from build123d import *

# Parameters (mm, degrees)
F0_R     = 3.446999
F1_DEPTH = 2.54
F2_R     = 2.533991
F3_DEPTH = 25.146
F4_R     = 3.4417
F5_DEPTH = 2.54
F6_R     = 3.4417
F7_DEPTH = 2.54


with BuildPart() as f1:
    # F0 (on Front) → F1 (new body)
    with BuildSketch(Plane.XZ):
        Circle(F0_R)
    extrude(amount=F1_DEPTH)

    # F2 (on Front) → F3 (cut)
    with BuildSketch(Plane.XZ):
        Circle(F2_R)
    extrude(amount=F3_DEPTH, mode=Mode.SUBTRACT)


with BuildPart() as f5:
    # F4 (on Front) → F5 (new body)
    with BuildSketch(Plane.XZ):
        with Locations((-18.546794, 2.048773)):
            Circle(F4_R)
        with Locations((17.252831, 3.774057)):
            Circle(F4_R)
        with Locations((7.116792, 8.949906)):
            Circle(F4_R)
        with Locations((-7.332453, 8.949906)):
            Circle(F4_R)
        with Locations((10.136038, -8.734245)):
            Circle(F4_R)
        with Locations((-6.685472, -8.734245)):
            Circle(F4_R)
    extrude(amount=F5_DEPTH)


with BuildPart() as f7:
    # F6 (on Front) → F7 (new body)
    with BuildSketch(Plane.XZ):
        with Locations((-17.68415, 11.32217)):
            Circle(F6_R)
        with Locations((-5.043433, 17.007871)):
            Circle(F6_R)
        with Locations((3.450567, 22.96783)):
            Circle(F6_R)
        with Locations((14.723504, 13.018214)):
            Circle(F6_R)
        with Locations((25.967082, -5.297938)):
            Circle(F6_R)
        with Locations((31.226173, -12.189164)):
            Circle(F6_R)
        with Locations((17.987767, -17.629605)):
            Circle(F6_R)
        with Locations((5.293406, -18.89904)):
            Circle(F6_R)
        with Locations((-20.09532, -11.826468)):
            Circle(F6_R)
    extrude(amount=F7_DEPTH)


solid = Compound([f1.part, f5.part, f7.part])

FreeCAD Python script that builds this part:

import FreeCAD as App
import Part
import Sketcher

V = App.Vector
Q = App.Units.Quantity

doc = App.newDocument("Part")
params = doc.addObject("Spreadsheet::Sheet", "Params")
for row, (alias, value) in enumerate([
    ("pad1_length", "0.1 in"),
    ("pocket1_length", "0.99 in"),
    ("sketch3_diameter", "0.271 in"),
    ("pad2_length", "0.1 in"),
    ("sketch4_diameter", "0.271 in"),
    ("pad3_length", "0.1 in"),
], start=1):
    params.set(f"A{row}", alias)
    params.set(f"B{row}", "=" + value)
    params.setAlias(f"B{row}", alias)

body = doc.addObject("PartDesign::Body", "Body")

# Sketch on XZ plane
sketch1 = body.newObject("Sketcher::SketchObject", "Sketch")
sketch1.AttachmentSupport = (doc.getObject("XZ_Plane"), [""])
sketch1.MapMode = "FlatFace"
sketch1.addGeometry(Part.Circle(V(0, 0, 0), V(0, 0, 1), 3.4), False)
sketch1.addConstraint(Sketcher.Constraint("Coincident", 0, 3, -1, 1))
sketch1.addConstraint(Sketcher.Constraint("Diameter", 0, 6.893998))
pad1 = body.newObject("PartDesign::Pad", "Pad")
pad1.Profile = sketch1
pad1.setExpression("Length", "Params.pad1_length")

# Sketch on XZ plane
sketch2 = body.newObject("Sketcher::SketchObject", "Sketch001")
sketch2.AttachmentSupport = (doc.getObject("XZ_Plane"), [""])
sketch2.MapMode = "FlatFace"
sketch2.addGeometry(Part.Circle(V(0, 0, 0), V(0, 0, 1), 2.5), False)
sketch2.addConstraint(Sketcher.Constraint("Coincident", 0, 3, -1, 1))
sketch2.addConstraint(Sketcher.Constraint("Diameter", 0, 5.067982))
pocket1 = body.newObject("PartDesign::Pocket", "Pocket")
pocket1.Profile = sketch2
pocket1.setExpression("Length", "Params.pocket1_length")
pocket1.Reversed = True
body2 = doc.addObject("PartDesign::Body", "Body001")
body2.AllowCompound = True

# Sketch on XZ plane
sketch3 = body2.newObject("Sketcher::SketchObject", "Sketch002")
sketch3.AttachmentSupport = (doc.getObject("XZ_Plane001"), [""])
sketch3.MapMode = "FlatFace"
sketch3.addGeometry(Part.Circle(V(-18.5, 2, 0), V(0, 0, 1), 3.4), False)
sketch3.addGeometry(Part.Circle(V(17.3, 3.8, 0), V(0, 0, 1), 3.4), False)
sketch3.addGeometry(Part.Circle(V(7.1, 8.9, 0), V(0, 0, 1), 3.4), False)
sketch3.addGeometry(Part.Circle(V(-7.3, 8.9, 0), V(0, 0, 1), 3.4), False)
sketch3.addGeometry(Part.Circle(V(10.1, -8.7, 0), V(0, 0, 1), 3.4), False)
sketch3.addGeometry(Part.Circle(V(-6.7, -8.7, 0), V(0, 0, 1), 3.4), False)
sketch3.addConstraint(Sketcher.Constraint("Equal", 0, 1))
sketch3.addConstraint(Sketcher.Constraint("Equal", 1, 2))
sketch3.addConstraint(Sketcher.Constraint("Equal", 2, 3))
sketch3.addConstraint(Sketcher.Constraint("Equal", 3, 4))
sketch3.addConstraint(Sketcher.Constraint("Equal", 4, 5))
sketch3.addConstraint(Sketcher.Constraint("Horizontal", 2, 3, 3, 3))
sketch3.addConstraint(Sketcher.Constraint("Horizontal", 4, 3, 5, 3))
sketch3.addConstraint(Sketcher.Constraint("Diameter", 0, Q("0.271 in")))
sketch3.addConstraint(Sketcher.Constraint("DistanceX", -1, 1, 1, 3, 17.252831))
sketch3.addConstraint(Sketcher.Constraint("DistanceX", 2, 3, 1, 3, 10.136039))
sketch3.addConstraint(Sketcher.Constraint("DistanceY", 1, 3, 2, 3, 5.175849))
sketch3.addConstraint(Sketcher.Constraint("DistanceX", 0, 3, 3, 3, 11.214341))
sketch3.addConstraint(Sketcher.Constraint("DistanceY", 4, 3, 2, 3, 17.684151))
sketch3.addConstraint(Sketcher.Constraint("DistanceX", 3, 3, 4, 3, 17.468491))
sketch3.addConstraint(Sketcher.Constraint("DistanceX", 0, 3, 5, 3, 11.861322))
sketch3.addConstraint(Sketcher.Constraint("DistanceX", 0, 3, -1, 1, 18.546794))
sketch3.addConstraint(Sketcher.Constraint("DistanceY", -1, 1, 0, 3, 2.048773))
sketch3.addConstraint(Sketcher.Constraint("DistanceY", -1, 1, 1, 3, 3.774057))
sketch3.setExpression("Constraints[7]", "Params.sketch3_diameter")
pad2 = body2.newObject("PartDesign::Pad", "Pad001")
pad2.Profile = sketch3
pad2.setExpression("Length", "Params.pad2_length")
body3 = doc.addObject("PartDesign::Body", "Body002")
body3.AllowCompound = True

# Sketch on XZ plane
sketch4 = body3.newObject("Sketcher::SketchObject", "Sketch003")
sketch4.AttachmentSupport = (doc.getObject("XZ_Plane002"), [""])
sketch4.MapMode = "FlatFace"
sketch4.addGeometry(Part.Circle(V(-17.7, 11.3, 0), V(0, 0, 1), 3.4), False)
sketch4.addGeometry(Part.Circle(V(-5, 17, 0), V(0, 0, 1), 3.4), False)
sketch4.addGeometry(Part.Circle(V(3.5, 23, 0), V(0, 0, 1), 3.4), False)
sketch4.addGeometry(Part.Circle(V(14.7, 13, 0), V(0, 0, 1), 3.4), False)
sketch4.addGeometry(Part.Circle(V(26, -5.3, 0), V(0, 0, 1), 3.4), False)
sketch4.addGeometry(Part.Circle(V(31.2, -12.2, 0), V(0, 0, 1), 3.4), False)
sketch4.addGeometry(Part.Circle(V(18, -17.6, 0), V(0, 0, 1), 3.4), False)
sketch4.addGeometry(Part.Circle(V(5.3, -18.9, 0), V(0, 0, 1), 3.4), False)
sketch4.addGeometry(Part.Circle(V(-20.1, -11.8, 0), V(0, 0, 1), 3.4), False)
sketch4.addConstraint(Sketcher.Constraint("Equal", 0, 1))
sketch4.addConstraint(Sketcher.Constraint("Equal", 1, 2))
sketch4.addConstraint(Sketcher.Constraint("Equal", 2, 3))
sketch4.addConstraint(Sketcher.Constraint("Equal", 3, 4))
sketch4.addConstraint(Sketcher.Constraint("Equal", 4, 5))
sketch4.addConstraint(Sketcher.Constraint("Equal", 5, 6))
sketch4.addConstraint(Sketcher.Constraint("Equal", 6, 7))
sketch4.addConstraint(Sketcher.Constraint("Equal", 7, 8))
sketch4.addConstraint(Sketcher.Constraint("Diameter", 0, Q("0.271 in")))
sketch4.addConstraint(Sketcher.Constraint("DistanceY", 0, 3, 1, 3, 5.685701))
sketch4.addConstraint(Sketcher.Constraint("DistanceX", 1, 3, 2, 3, 8.494))
sketch4.addConstraint(Sketcher.Constraint("DistanceX", 1, 3, 6, 3, 23.0312))
sketch4.addConstraint(Sketcher.Constraint("DistanceY", 7, 3, 4, 3, 13.601102))
sketch4.addConstraint(Sketcher.Constraint("DistanceX", 7, 3, 3, 3, 9.430098))
sketch4.addConstraint(Sketcher.Constraint("DistanceX", 0, 3, -1, 1, 17.68415))
sketch4.addConstraint(Sketcher.Constraint("DistanceY", -1, 1, 0, 3, 11.32217))
sketch4.addConstraint(Sketcher.Constraint("DistanceY", -1, 1, 2, 3, 22.96783))
sketch4.addConstraint(Sketcher.Constraint("DistanceY", 4, 3, -1, 1, 5.297938))
sketch4.addConstraint(Sketcher.Constraint("DistanceX", 8, 3, -1, 1, 20.09532))
sketch4.addConstraint(Sketcher.Constraint("DistanceX", 3, 3, 4, 3, 11.243578))
sketch4.addConstraint(Sketcher.Constraint("DistanceX", 4, 3, 5, 3, 5.259091))
sketch4.addConstraint(Sketcher.Constraint("DistanceY", 6, 3, 5, 3, 5.440441))
sketch4.addConstraint(Sketcher.Constraint("DistanceY", 6, 3, 3, 3, 30.647819))
sketch4.addConstraint(Sketcher.Constraint("DistanceX", 7, 3, 6, 3, 12.694361))
sketch4.addConstraint(Sketcher.Constraint("DistanceY", 7, 3, 8, 3, 7.072572))
sketch4.addConstraint(Sketcher.Constraint("DistanceX", 1, 3, -1, 1, 5.043433))
sketch4.addConstraint(Sketcher.Constraint("DistanceY", -1, 1, 3, 3, 13.018214))
sketch4.setExpression("Constraints[8]", "Params.sketch4_diameter")
pad3 = body3.newObject("PartDesign::Pad", "Pad002")
pad3.Profile = sketch4
pad3.setExpression("Length", "Params.pad3_length")

doc.recompute()
